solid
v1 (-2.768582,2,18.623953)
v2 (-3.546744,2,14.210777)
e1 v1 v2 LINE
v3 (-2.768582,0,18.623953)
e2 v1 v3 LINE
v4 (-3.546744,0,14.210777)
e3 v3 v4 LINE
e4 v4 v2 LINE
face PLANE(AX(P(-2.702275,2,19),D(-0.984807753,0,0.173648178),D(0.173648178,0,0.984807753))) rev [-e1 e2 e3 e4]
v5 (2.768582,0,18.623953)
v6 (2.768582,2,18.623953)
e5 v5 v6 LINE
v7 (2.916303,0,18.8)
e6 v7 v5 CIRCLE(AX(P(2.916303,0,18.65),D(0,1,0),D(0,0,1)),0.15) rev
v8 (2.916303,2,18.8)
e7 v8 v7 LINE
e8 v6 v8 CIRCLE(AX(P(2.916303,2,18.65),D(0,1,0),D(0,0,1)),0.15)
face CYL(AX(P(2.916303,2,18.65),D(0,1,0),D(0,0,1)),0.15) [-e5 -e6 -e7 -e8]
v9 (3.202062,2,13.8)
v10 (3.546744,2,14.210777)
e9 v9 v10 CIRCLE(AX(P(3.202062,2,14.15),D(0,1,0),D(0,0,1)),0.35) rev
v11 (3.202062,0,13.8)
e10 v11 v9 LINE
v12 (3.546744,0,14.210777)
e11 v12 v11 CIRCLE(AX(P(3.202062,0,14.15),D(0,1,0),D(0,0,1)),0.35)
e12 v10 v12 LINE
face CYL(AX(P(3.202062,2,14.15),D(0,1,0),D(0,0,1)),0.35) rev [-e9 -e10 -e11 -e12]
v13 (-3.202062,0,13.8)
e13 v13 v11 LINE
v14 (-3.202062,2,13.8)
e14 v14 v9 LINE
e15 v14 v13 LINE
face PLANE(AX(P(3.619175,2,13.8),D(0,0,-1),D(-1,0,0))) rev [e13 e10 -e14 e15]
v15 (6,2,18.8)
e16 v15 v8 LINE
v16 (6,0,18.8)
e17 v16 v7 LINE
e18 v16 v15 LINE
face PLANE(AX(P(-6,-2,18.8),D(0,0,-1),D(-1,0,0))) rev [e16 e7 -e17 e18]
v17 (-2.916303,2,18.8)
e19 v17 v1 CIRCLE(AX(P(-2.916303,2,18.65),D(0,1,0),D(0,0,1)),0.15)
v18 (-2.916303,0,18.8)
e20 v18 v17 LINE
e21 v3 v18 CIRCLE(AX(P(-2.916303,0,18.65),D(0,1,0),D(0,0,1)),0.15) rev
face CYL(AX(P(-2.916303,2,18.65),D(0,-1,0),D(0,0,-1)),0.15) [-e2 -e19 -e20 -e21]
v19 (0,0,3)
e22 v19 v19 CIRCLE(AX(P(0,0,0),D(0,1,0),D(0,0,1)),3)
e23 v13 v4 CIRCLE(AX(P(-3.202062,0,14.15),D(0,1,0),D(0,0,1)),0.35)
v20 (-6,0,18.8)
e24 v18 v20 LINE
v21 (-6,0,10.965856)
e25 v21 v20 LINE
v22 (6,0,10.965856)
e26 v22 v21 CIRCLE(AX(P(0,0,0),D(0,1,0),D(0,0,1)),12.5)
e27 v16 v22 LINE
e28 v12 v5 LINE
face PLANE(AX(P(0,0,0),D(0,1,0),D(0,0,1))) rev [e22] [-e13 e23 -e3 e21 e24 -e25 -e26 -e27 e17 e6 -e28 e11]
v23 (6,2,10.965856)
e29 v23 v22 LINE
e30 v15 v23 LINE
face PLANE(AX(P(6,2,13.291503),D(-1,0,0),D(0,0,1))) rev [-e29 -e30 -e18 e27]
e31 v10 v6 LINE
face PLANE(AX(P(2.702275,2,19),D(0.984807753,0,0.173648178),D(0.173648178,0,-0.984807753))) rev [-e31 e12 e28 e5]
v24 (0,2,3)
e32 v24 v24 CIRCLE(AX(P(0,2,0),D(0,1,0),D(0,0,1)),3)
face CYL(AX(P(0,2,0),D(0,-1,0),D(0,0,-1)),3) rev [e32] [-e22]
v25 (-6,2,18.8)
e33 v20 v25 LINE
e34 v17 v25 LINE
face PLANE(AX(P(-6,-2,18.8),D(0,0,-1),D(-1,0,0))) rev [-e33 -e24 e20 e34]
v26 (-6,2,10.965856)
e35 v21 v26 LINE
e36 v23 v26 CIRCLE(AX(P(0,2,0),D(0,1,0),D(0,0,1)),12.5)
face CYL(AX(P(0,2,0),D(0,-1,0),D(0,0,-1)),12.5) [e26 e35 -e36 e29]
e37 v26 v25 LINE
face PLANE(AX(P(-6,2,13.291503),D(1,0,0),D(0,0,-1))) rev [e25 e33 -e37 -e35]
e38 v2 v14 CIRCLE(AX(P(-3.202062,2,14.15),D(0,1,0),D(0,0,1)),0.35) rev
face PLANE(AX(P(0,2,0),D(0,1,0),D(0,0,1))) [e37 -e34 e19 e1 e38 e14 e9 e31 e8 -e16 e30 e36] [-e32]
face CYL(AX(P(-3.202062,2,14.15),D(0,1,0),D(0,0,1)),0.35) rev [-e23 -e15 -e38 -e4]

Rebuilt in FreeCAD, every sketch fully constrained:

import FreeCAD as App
import Part
import Sketcher
Q = App.Units.Quantity


def edges_at(feature, points):
    """Names of the edges that pass closest to the given points."""
    edges = feature.Shape.Edges
    near = lambda p: min(range(len(edges)), key=lambda i: edges[i].distToShape(Part.Vertex(*p))[0])
    return sorted({f"Edge{near(p) + 1}" for p in points})

doc = App.newDocument("Part")
params = doc.addObject("Spreadsheet::Sheet", "Params")
for row, (alias, value) in enumerate([
    ("sketch1_diameter", "6 mm"),
    ("sketch1_width", "12 mm"),
    ("sketch1_height", "25 mm"),
    ("pad1_length", "2 mm"),
    ("sketch2_diameter", "25 mm"),
    ("sketch2_diameter2", "6 mm"),
    ("pad2_length", "2 mm"),
    ("sketch3_width", "12 mm"),
    ("sketch3_height", "0.2 mm"),
    ("pocket1_length", "4 mm"),
    ("fillet_radius", "0.35 mm"),
    ("fillet2_radius", "0.15 mm"),
], start=1):
    params.set(f"A{row}", alias)
    params.set(f"B{row}", "=" + value)
    params.setAlias(f"B{row}", alias)

body = doc.addObject("PartDesign::Body", "Body")

sketch1 = doc.addObject("Sketcher::SketchObject", "Sketch")
body.addObject(sketch1)
sketch1.AttachmentSupport = (doc.XZ_Plane, [""])
sketch1.MapMode = "FlatFace"
sketch1.addGeometry(Part.LineSegment(App.Vector(-6, -6, 0), App.Vector(-6, 19, 0)), False)
sketch1.addGeometry(Part.LineSegment(App.Vector(-6, 19, 0), App.Vector(-2.702275, 19, 0)), False)
sketch1.addGeometry(Part.LineSegment(App.Vector(-2.702275, 19, 0), App.Vector(-3.619175, 13.8, 0)), False)
sketch1.addGeometry(Part.LineSegment(App.Vector(-3.619175, 13.8, 0), App.Vector(3.619175, 13.8, 0)), False)
sketch1.addGeometry(Part.LineSegment(App.Vector(3.619175, 13.8, 0), App.Vector(2.702275, 19, 0)), False)
sketch1.addGeometry(Part.LineSegment(App.Vector(2.702275, 19, 0), App.Vector(6, 19, 0)), False)
sketch1.addGeometry(Part.LineSegment(App.Vector(6, 19, 0), App.Vector(6, -6, 0)), False)
sketch1.addGeometry(Part.LineSegment(App.Vector(6, -6, 0), App.Vector(-6, -6, 0)), False)
sketch1.addGeometry(Part.Circle(App.Vector(0, 0, 0), App.Vector(0, 0, 1), 3), False)
sketch1.addConstraint(Sketcher.Constraint("Coincident", 0, 2, 1, 1))
sketch1.addConstraint(Sketcher.Constraint("Coincident", 1, 2, 2, 1))
sketch1.addConstraint(Sketcher.Constraint("Coincident", 2, 2, 3, 1))
sketch1.addConstraint(Sketcher.Constraint("Coincident", 3, 2, 4, 1))
sketch1.addConstraint(Sketcher.Constraint("Coincident", 4, 2, 5, 1))
sketch1.addConstraint(Sketcher.Constraint("Coincident", 5, 2, 6, 1))
sketch1.addConstraint(Sketcher.Constraint("Coincident", 6, 2, 7, 1))
sketch1.addConstraint(Sketcher.Constraint("Coincident", 7, 2, 0, 1))
sketch1.addConstraint(Sketcher.Constraint("Vertical", 0))
sketch1.addConstraint(Sketcher.Constraint("Horizontal", 1))
sketch1.addConstraint(Sketcher.Constraint("Horizontal", 3))
sketch1.addConstraint(Sketcher.Constraint("Horizontal", 5))
sketch1.addConstraint(Sketcher.Constraint("Vertical", 6))
sketch1.addConstraint(Sketcher.Constraint("Horizontal", 7))
sketch1.addConstraint(Sketcher.Constraint("Coincident", 8, 3, -1, 1))
sketch1.addConstraint(Sketcher.Constraint("Symmetric", 1, 2, 4, 2, -2))
sketch1.addConstraint(Sketcher.Constraint("Equal", 1, 5))
sketch1.addConstraint(Sketcher.Constraint("Equal", 2, 4))
sketch1.addConstraint(Sketcher.Constraint("Diameter", 8, 6.0))
sketch1.addConstraint(Sketcher.Constraint("DistanceX", 7, 2, 7, 1, 12.0))
sketch1.addConstraint(Sketcher.Constraint("DistanceY", 0, 1, 0, 2, 25.0))
sketch1.addConstraint(Sketcher.Constraint("Angle", 2, Q("-100 deg")))
sketch1.addConstraint(Sketcher.Constraint("DistanceY", -1, 1, 0, 2, 19.0))
sketch1.addConstraint(Sketcher.Constraint("DistanceY", -1, 1, 2, 2, 13.8))
sketch1.addConstraint(Sketcher.Constraint("DistanceX", 3, 1, 3, 2, 7.238351))
sketch1.setExpression("Constraints[18]", "Params.sketch1_diameter")
sketch1.setExpression("Constraints[19]", "Params.sketch1_width")
sketch1.setExpression("Constraints[20]", "Params.sketch1_height")
pad1 = doc.addObject("PartDesign::Pad", "Pad")
body.addObject(pad1)
pad1.Profile = sketch1
pad1.setExpression("Length", "Params.pad1_length")
pad1.Reversed = True

sketch2 = doc.addObject("Sketcher::SketchObject", "Sketch001")
body.addObject(sketch2)
sketch2.AttachmentSupport = (doc.XZ_Plane, [""])
sketch2.MapMode = "FlatFace"
sketch2.addGeometry(Part.Circle(App.Vector(0, 0, 0), App.Vector(0, 0, 1), 12.5), False)
sketch2.addGeometry(Part.Circle(App.Vector(0, 0, 0), App.Vector(0, 0, 1), 3), False)
sketch2.addConstraint(Sketcher.Constraint("Coincident", 0, 3, -1, 1))
sketch2.addConstraint(Sketcher.Constraint("Coincident", 1, 3, -1, 1))
sketch2.addConstraint(Sketcher.Constraint("Diameter", 0, 25.0))
sketch2.addConstraint(Sketcher.Constraint("Diameter", 1, 6.0))
sketch2.setExpression("Constraints[2]", "Params.sketch2_diameter")
sketch2.setExpression("Constraints[3]", "Params.sketch2_diameter2")
pad2 = doc.addObject("PartDesign::Pad", "Pad001")
body.addObject(pad2)
pad2.Profile = sketch2
pad2.setExpression("Length", "Params.pad2_length")
pad2.Reversed = True

sketch3 = doc.addObject("Sketcher::SketchObject", "Sketch002")
body.addObject(sketch3)
sketch3.AttachmentSupport = (doc.XZ_Plane, [""])
sketch3.MapMode = "FlatFace"
sketch3.AttachmentOffset = App.Placement(App.Vector(0, 0, -2), App.Rotation())
sketch3.addGeometry(Part.LineSegment(App.Vector(-6, 18.8, 0), App.Vector(-6, 19, 0)), False)
sketch3.addGeometry(Part.LineSegment(App.Vector(-6, 19, 0), App.Vector(6, 19, 0)), False)
sketch3.addGeometry(Part.LineSegment(App.Vector(6, 19, 0), App.Vector(6, 18.8, 0)), False)
sketch3.addGeometry(Part.LineSegment(App.Vector(6, 18.8, 0), App.Vector(-6, 18.8, 0)), False)
sketch3.addConstraint(Sketcher.Constraint("Coincident", 0, 2, 1, 1))
sketch3.addConstraint(Sketcher.Constraint("Coincident", 1, 2, 2, 1))
sketch3.addConstraint(Sketcher.Constraint("Coincident", 2, 2, 3, 1))
sketch3.addConstraint(Sketcher.Constraint("Coincident", 3, 2, 0, 1))
sketch3.addConstraint(Sketcher.Constraint("Vertical", 0))
sketch3.addConstraint(Sketcher.Constraint("Horizontal", 1))
sketch3.addConstraint(Sketcher.Constraint("Vertical", 2))
sketch3.addConstraint(Sketcher.Constraint("Horizontal", 3))
sketch3.addConstraint(Sketcher.Constraint("DistanceX", 1, 1, 1, 2, 12.0))
sketch3.addConstraint(Sketcher.Constraint("DistanceY", 0, 1, 0, 2, 0.2))
sketch3.addConstraint(Sketcher.Constraint("DistanceX", 0, 2, -1, 1, 6.0))
sketch3.addConstraint(Sketcher.Constraint("DistanceY", -1, 1, 0, 2, 19.0))
sketch3.setExpression("Constraints[8]", "Params.sketch3_width")
sketch3.setExpression("Constraints[9]", "Params.sketch3_height")
pocket1 = doc.addObject("PartDesign::Pocket", "Pocket")
body.addObject(pocket1)
pocket1.Profile = sketch3
pocket1.setExpression("Length", "Params.pocket1_length")
pocket1.Reversed = True
doc.recompute()

fillet = doc.addObject("PartDesign::Fillet", "Fillet")
body.addObject(fillet)
fillet.Base = (pocket1, edges_at(pocket1, [(3.619, 1, 13.8), (-3.619, 1, 13.8)]))
fillet.setExpression("Radius", "Params.fillet_radius")
doc.recompute()

fillet2 = doc.addObject("PartDesign::Fillet", "Fillet001")
body.addObject(fillet2)
fillet2.Base = (fillet, edges_at(fillet, [(2.738, 1, 18.8), (-2.738, 1, 18.8)]))
fillet2.setExpression("Radius", "Params.fillet2_radius")

doc.recompute()
